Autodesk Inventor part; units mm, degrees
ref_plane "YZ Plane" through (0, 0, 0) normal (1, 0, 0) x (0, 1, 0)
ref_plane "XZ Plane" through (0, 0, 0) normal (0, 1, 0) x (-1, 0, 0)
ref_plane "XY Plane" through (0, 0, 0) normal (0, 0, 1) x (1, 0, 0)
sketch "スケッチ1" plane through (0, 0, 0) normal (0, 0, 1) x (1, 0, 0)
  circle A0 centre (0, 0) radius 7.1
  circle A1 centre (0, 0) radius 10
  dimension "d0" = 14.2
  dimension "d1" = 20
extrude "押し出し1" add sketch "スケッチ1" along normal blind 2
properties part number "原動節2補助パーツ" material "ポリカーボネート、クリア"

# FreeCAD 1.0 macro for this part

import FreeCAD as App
import Part
import Sketcher
from FreeCAD import Vector

doc = App.newDocument("Part")
body = doc.addObject("PartDesign::Body", "Body")

# Sketch on XY plane
sketch1 = body.newObject("Sketcher::SketchObject", "Sketch")
sketch1.AttachmentSupport = (doc.getObject("XY_Plane"), [""])
sketch1.MapMode = "FlatFace"
sketch1.addGeometry(Part.Circle(Vector(0, 0, 0), Vector(0, 0, 1), 10), False)
sketch1.addGeometry(Part.Circle(Vector(0, 0, 0), Vector(0, 0, 1), 7.1), False)
sketch1.addConstraint(Sketcher.Constraint("Coincident", 0, 3, -1, 1))
sketch1.addConstraint(Sketcher.Constraint("Coincident", 1, 3, -1, 1))
sketch1.addConstraint(Sketcher.Constraint("Diameter", 0, 20.0))
sketch1.addConstraint(Sketcher.Constraint("Diameter", 1, 14.2))
pad1 = body.newObject("PartDesign::Pad", "Pad")
pad1.Profile = sketch1
pad1.Length = 2

doc.recompute()
